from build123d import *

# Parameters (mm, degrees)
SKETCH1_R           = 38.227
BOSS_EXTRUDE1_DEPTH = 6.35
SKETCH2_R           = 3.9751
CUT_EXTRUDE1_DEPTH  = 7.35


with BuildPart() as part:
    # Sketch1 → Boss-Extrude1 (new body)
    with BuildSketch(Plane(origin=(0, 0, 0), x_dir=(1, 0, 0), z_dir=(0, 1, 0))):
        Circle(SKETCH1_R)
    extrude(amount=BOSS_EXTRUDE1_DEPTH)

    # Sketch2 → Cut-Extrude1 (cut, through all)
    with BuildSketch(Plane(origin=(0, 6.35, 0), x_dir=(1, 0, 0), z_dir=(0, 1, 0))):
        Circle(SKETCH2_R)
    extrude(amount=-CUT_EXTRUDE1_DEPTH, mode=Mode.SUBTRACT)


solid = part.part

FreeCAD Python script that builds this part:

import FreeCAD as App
import Part
import Sketcher
Q = App.Units.Quantity

doc = App.newDocument("Part")
body = doc.addObject("PartDesign::Body", "Body")

# Sketch on XZ plane
sketch1 = doc.addObject("Sketcher::SketchObject", "Sketch")
body.addObject(sketch1)
sketch1.AttachmentSupport = (doc.XZ_Plane, [""])
sketch1.MapMode = "FlatFace"
sketch1.addGeometry(Part.Circle(App.Vector(0, 0, 0), App.Vector(0, 0, 1), 38), False)
sketch1.addConstraint([
    Sketcher.Constraint("Coincident", 0, 3, -1, 1),
    Sketcher.Constraint("Diameter", 0, Q("3.01 in")),
])
pad1 = doc.addObject("PartDesign::Pad", "Pad")
body.addObject(pad1)
pad1.Profile = sketch1
pad1.Length = Q("0.25 in")
pad1.Reversed = True

# Sketch on XZ plane
sketch2 = doc.addObject("Sketcher::SketchObject", "Sketch001")
body.addObject(sketch2)
sketch2.AttachmentSupport = (doc.XZ_Plane, [""])
sketch2.MapMode = "FlatFace"
sketch2.AttachmentOffset = App.Placement(App.Vector(0, 0, -0.25 * 25.4), App.Rotation())
sketch2.addGeometry(Part.Circle(App.Vector(0, 0, 0), App.Vector(0, 0, 1), 4), False)
sketch2.addConstraint([
    Sketcher.Constraint("Coincident", 0, 3, -1, 1),
    Sketcher.Constraint("Diameter", 0, Q("0.313 in")),
])
pocket1 = doc.addObject("PartDesign::Pocket", "Pocket")
body.addObject(pocket1)
pocket1.Profile = sketch2
pocket1.Type = "ThroughAll"
pocket1.Reversed = True

doc.recompute()
